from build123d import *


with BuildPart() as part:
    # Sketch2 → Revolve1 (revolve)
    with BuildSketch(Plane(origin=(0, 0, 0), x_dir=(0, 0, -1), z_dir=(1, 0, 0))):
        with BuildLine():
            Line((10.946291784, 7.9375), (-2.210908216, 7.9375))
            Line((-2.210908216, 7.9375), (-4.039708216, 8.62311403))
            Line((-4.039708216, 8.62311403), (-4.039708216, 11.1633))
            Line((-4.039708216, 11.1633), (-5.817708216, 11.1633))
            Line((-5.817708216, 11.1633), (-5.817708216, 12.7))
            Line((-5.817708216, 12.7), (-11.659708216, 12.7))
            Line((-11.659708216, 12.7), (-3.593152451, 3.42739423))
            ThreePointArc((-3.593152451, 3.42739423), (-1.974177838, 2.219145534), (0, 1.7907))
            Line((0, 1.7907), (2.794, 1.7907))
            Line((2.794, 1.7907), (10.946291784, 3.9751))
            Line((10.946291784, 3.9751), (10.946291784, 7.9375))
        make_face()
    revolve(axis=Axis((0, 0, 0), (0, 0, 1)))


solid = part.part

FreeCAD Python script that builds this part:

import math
import FreeCAD as App
import Part
import Sketcher
from FreeCAD import Vector
Q = App.Units.Quantity

doc = App.newDocument("Part")
body = doc.addObject("PartDesign::Body", "Body")

sketch1 = body.newObject("Sketcher::SketchObject", "Sketch")
sketch1.AttachmentSupport = (doc.getObject("YZ_Plane"), [""])
sketch1.MapMode = "FlatFace"
sketch1.addGeometry(Part.LineSegment(Vector(7.9375, -10.946292, 0), Vector(7.9375, 2.210908, 0)), False)
sketch1.addGeometry(Part.LineSegment(Vector(7.9375, 2.210908, 0), Vector(8.623114, 4.039708, 0)), False)
sketch1.addGeometry(Part.LineSegment(Vector(8.623114, 4.039708, 0), Vector(11.1633, 4.039708, 0)), False)
sketch1.addGeometry(Part.LineSegment(Vector(11.1633, 4.039708, 0), Vector(11.1633, 5.817708, 0)), False)
sketch1.addGeometry(Part.LineSegment(Vector(11.1633, 5.817708, 0), Vector(12.7, 5.817708, 0)), False)
sketch1.addGeometry(Part.LineSegment(Vector(12.7, 5.817708, 0), Vector(12.7, 11.659708, 0)), False)
sketch1.addGeometry(Part.LineSegment(Vector(12.7, 11.659708, 0), Vector(3.427394, 3.593152, 0)), False)
sketch1.addGeometry(Part.ArcOfCircle(Part.Circle(Vector(6.5532, 0, 0), Vector(0, 0, 1), 4.7625), math.radians(131.021119), math.radians(180)), False)
sketch1.addGeometry(Part.LineSegment(Vector(1.7907, 0, 0), Vector(1.7907, -2.794, 0)), False)
sketch1.addGeometry(Part.LineSegment(Vector(1.7907, -2.794, 0), Vector(3.9751, -10.946292, 0)), False)
sketch1.addGeometry(Part.LineSegment(Vector(3.9751, -10.946292, 0), Vector(7.9375, -10.946292, 0)), False)
sketch1.addConstraint(Sketcher.Constraint("Coincident", 0, 2, 1, 1))
sketch1.addConstraint(Sketcher.Constraint("Coincident", 1, 2, 2, 1))
sketch1.addConstraint(Sketcher.Constraint("Coincident", 2, 2, 3, 1))
sketch1.addConstraint(Sketcher.Constraint("Coincident", 3, 2, 4, 1))
sketch1.addConstraint(Sketcher.Constraint("Coincident", 4, 2, 5, 1))
sketch1.addConstraint(Sketcher.Constraint("Coincident", 5, 2, 6, 1))
sketch1.addConstraint(Sketcher.Constraint("Tangent", 6, 2, 7, 1))
sketch1.addConstraint(Sketcher.Constraint("Tangent", 7, 2, 8, 1))
sketch1.addConstraint(Sketcher.Constraint("Coincident", 8, 2, 9, 1))
sketch1.addConstraint(Sketcher.Constraint("Coincident", 9, 2, 10, 1))
sketch1.addConstraint(Sketcher.Constraint("Coincident", 10, 2, 0, 1))
sketch1.addConstraint(Sketcher.Constraint("Vertical", 0))
sketch1.addConstraint(Sketcher.Constraint("Horizontal", 2))
sketch1.addConstraint(Sketcher.Constraint("Vertical", 3))
sketch1.addConstraint(Sketcher.Constraint("Horizontal", 4))
sketch1.addConstraint(Sketcher.Constraint("Vertical", 5))
sketch1.addConstraint(Sketcher.Constraint("Vertical", 8))
sketch1.addConstraint(Sketcher.Constraint("Horizontal", 10))
sketch1.addConstraint(Sketcher.Constraint("PointOnObject", 7, 3, -1))
sketch1.addConstraint(Sketcher.Constraint("Angle", 9, Q("-75 deg")))
sketch1.addConstraint(Sketcher.Constraint("Radius", 7, Q("0.1875 in")))
sketch1.addConstraint(Sketcher.Constraint("DistanceY", 3, 1, 3, 2, Q("0.07 in")))
sketch1.addConstraint(Sketcher.Constraint("DistanceY", 5, 1, 5, 2, Q("0.23 in")))
sketch1.addConstraint(Sketcher.Constraint("DistanceY", 8, 2, 8, 1, Q("0.11 in")))
sketch1.addConstraint(Sketcher.Constraint("DistanceX", -1, 1, 4, 2, Q("0.5 in")))
sketch1.addConstraint(Sketcher.Constraint("DistanceX", 10, 1, 10, 2, Q("0.156 in")))
sketch1.addConstraint(Sketcher.Constraint("DistanceY", 0, 1, 0, 2, Q("0.518 in")))
sketch1.addConstraint(Sketcher.Constraint("DistanceX", 4, 1, 4, 2, Q("0.0605 in")))
sketch1.addConstraint(Sketcher.Constraint("DistanceX", -1, 1, 7, 3, Q("0.258 in")))
sketch1.addConstraint(Sketcher.Constraint("DistanceX", -1, 1, 0, 2, Q("0.3125 in")))
sketch1.addConstraint(Sketcher.Constraint("DistanceY", 0, 2, 1, 2, Q("0.072 in")))
sketch1.addConstraint(Sketcher.Constraint("DistanceX", 2, 1, 2, 2, 2.540186))
revolution = body.newObject("PartDesign::Revolution", "Revolution")
revolution.Profile = sketch1
revolution.ReferenceAxis = (sketch1, ["V_Axis"])
revolution.Angle = 360

doc.recompute()
